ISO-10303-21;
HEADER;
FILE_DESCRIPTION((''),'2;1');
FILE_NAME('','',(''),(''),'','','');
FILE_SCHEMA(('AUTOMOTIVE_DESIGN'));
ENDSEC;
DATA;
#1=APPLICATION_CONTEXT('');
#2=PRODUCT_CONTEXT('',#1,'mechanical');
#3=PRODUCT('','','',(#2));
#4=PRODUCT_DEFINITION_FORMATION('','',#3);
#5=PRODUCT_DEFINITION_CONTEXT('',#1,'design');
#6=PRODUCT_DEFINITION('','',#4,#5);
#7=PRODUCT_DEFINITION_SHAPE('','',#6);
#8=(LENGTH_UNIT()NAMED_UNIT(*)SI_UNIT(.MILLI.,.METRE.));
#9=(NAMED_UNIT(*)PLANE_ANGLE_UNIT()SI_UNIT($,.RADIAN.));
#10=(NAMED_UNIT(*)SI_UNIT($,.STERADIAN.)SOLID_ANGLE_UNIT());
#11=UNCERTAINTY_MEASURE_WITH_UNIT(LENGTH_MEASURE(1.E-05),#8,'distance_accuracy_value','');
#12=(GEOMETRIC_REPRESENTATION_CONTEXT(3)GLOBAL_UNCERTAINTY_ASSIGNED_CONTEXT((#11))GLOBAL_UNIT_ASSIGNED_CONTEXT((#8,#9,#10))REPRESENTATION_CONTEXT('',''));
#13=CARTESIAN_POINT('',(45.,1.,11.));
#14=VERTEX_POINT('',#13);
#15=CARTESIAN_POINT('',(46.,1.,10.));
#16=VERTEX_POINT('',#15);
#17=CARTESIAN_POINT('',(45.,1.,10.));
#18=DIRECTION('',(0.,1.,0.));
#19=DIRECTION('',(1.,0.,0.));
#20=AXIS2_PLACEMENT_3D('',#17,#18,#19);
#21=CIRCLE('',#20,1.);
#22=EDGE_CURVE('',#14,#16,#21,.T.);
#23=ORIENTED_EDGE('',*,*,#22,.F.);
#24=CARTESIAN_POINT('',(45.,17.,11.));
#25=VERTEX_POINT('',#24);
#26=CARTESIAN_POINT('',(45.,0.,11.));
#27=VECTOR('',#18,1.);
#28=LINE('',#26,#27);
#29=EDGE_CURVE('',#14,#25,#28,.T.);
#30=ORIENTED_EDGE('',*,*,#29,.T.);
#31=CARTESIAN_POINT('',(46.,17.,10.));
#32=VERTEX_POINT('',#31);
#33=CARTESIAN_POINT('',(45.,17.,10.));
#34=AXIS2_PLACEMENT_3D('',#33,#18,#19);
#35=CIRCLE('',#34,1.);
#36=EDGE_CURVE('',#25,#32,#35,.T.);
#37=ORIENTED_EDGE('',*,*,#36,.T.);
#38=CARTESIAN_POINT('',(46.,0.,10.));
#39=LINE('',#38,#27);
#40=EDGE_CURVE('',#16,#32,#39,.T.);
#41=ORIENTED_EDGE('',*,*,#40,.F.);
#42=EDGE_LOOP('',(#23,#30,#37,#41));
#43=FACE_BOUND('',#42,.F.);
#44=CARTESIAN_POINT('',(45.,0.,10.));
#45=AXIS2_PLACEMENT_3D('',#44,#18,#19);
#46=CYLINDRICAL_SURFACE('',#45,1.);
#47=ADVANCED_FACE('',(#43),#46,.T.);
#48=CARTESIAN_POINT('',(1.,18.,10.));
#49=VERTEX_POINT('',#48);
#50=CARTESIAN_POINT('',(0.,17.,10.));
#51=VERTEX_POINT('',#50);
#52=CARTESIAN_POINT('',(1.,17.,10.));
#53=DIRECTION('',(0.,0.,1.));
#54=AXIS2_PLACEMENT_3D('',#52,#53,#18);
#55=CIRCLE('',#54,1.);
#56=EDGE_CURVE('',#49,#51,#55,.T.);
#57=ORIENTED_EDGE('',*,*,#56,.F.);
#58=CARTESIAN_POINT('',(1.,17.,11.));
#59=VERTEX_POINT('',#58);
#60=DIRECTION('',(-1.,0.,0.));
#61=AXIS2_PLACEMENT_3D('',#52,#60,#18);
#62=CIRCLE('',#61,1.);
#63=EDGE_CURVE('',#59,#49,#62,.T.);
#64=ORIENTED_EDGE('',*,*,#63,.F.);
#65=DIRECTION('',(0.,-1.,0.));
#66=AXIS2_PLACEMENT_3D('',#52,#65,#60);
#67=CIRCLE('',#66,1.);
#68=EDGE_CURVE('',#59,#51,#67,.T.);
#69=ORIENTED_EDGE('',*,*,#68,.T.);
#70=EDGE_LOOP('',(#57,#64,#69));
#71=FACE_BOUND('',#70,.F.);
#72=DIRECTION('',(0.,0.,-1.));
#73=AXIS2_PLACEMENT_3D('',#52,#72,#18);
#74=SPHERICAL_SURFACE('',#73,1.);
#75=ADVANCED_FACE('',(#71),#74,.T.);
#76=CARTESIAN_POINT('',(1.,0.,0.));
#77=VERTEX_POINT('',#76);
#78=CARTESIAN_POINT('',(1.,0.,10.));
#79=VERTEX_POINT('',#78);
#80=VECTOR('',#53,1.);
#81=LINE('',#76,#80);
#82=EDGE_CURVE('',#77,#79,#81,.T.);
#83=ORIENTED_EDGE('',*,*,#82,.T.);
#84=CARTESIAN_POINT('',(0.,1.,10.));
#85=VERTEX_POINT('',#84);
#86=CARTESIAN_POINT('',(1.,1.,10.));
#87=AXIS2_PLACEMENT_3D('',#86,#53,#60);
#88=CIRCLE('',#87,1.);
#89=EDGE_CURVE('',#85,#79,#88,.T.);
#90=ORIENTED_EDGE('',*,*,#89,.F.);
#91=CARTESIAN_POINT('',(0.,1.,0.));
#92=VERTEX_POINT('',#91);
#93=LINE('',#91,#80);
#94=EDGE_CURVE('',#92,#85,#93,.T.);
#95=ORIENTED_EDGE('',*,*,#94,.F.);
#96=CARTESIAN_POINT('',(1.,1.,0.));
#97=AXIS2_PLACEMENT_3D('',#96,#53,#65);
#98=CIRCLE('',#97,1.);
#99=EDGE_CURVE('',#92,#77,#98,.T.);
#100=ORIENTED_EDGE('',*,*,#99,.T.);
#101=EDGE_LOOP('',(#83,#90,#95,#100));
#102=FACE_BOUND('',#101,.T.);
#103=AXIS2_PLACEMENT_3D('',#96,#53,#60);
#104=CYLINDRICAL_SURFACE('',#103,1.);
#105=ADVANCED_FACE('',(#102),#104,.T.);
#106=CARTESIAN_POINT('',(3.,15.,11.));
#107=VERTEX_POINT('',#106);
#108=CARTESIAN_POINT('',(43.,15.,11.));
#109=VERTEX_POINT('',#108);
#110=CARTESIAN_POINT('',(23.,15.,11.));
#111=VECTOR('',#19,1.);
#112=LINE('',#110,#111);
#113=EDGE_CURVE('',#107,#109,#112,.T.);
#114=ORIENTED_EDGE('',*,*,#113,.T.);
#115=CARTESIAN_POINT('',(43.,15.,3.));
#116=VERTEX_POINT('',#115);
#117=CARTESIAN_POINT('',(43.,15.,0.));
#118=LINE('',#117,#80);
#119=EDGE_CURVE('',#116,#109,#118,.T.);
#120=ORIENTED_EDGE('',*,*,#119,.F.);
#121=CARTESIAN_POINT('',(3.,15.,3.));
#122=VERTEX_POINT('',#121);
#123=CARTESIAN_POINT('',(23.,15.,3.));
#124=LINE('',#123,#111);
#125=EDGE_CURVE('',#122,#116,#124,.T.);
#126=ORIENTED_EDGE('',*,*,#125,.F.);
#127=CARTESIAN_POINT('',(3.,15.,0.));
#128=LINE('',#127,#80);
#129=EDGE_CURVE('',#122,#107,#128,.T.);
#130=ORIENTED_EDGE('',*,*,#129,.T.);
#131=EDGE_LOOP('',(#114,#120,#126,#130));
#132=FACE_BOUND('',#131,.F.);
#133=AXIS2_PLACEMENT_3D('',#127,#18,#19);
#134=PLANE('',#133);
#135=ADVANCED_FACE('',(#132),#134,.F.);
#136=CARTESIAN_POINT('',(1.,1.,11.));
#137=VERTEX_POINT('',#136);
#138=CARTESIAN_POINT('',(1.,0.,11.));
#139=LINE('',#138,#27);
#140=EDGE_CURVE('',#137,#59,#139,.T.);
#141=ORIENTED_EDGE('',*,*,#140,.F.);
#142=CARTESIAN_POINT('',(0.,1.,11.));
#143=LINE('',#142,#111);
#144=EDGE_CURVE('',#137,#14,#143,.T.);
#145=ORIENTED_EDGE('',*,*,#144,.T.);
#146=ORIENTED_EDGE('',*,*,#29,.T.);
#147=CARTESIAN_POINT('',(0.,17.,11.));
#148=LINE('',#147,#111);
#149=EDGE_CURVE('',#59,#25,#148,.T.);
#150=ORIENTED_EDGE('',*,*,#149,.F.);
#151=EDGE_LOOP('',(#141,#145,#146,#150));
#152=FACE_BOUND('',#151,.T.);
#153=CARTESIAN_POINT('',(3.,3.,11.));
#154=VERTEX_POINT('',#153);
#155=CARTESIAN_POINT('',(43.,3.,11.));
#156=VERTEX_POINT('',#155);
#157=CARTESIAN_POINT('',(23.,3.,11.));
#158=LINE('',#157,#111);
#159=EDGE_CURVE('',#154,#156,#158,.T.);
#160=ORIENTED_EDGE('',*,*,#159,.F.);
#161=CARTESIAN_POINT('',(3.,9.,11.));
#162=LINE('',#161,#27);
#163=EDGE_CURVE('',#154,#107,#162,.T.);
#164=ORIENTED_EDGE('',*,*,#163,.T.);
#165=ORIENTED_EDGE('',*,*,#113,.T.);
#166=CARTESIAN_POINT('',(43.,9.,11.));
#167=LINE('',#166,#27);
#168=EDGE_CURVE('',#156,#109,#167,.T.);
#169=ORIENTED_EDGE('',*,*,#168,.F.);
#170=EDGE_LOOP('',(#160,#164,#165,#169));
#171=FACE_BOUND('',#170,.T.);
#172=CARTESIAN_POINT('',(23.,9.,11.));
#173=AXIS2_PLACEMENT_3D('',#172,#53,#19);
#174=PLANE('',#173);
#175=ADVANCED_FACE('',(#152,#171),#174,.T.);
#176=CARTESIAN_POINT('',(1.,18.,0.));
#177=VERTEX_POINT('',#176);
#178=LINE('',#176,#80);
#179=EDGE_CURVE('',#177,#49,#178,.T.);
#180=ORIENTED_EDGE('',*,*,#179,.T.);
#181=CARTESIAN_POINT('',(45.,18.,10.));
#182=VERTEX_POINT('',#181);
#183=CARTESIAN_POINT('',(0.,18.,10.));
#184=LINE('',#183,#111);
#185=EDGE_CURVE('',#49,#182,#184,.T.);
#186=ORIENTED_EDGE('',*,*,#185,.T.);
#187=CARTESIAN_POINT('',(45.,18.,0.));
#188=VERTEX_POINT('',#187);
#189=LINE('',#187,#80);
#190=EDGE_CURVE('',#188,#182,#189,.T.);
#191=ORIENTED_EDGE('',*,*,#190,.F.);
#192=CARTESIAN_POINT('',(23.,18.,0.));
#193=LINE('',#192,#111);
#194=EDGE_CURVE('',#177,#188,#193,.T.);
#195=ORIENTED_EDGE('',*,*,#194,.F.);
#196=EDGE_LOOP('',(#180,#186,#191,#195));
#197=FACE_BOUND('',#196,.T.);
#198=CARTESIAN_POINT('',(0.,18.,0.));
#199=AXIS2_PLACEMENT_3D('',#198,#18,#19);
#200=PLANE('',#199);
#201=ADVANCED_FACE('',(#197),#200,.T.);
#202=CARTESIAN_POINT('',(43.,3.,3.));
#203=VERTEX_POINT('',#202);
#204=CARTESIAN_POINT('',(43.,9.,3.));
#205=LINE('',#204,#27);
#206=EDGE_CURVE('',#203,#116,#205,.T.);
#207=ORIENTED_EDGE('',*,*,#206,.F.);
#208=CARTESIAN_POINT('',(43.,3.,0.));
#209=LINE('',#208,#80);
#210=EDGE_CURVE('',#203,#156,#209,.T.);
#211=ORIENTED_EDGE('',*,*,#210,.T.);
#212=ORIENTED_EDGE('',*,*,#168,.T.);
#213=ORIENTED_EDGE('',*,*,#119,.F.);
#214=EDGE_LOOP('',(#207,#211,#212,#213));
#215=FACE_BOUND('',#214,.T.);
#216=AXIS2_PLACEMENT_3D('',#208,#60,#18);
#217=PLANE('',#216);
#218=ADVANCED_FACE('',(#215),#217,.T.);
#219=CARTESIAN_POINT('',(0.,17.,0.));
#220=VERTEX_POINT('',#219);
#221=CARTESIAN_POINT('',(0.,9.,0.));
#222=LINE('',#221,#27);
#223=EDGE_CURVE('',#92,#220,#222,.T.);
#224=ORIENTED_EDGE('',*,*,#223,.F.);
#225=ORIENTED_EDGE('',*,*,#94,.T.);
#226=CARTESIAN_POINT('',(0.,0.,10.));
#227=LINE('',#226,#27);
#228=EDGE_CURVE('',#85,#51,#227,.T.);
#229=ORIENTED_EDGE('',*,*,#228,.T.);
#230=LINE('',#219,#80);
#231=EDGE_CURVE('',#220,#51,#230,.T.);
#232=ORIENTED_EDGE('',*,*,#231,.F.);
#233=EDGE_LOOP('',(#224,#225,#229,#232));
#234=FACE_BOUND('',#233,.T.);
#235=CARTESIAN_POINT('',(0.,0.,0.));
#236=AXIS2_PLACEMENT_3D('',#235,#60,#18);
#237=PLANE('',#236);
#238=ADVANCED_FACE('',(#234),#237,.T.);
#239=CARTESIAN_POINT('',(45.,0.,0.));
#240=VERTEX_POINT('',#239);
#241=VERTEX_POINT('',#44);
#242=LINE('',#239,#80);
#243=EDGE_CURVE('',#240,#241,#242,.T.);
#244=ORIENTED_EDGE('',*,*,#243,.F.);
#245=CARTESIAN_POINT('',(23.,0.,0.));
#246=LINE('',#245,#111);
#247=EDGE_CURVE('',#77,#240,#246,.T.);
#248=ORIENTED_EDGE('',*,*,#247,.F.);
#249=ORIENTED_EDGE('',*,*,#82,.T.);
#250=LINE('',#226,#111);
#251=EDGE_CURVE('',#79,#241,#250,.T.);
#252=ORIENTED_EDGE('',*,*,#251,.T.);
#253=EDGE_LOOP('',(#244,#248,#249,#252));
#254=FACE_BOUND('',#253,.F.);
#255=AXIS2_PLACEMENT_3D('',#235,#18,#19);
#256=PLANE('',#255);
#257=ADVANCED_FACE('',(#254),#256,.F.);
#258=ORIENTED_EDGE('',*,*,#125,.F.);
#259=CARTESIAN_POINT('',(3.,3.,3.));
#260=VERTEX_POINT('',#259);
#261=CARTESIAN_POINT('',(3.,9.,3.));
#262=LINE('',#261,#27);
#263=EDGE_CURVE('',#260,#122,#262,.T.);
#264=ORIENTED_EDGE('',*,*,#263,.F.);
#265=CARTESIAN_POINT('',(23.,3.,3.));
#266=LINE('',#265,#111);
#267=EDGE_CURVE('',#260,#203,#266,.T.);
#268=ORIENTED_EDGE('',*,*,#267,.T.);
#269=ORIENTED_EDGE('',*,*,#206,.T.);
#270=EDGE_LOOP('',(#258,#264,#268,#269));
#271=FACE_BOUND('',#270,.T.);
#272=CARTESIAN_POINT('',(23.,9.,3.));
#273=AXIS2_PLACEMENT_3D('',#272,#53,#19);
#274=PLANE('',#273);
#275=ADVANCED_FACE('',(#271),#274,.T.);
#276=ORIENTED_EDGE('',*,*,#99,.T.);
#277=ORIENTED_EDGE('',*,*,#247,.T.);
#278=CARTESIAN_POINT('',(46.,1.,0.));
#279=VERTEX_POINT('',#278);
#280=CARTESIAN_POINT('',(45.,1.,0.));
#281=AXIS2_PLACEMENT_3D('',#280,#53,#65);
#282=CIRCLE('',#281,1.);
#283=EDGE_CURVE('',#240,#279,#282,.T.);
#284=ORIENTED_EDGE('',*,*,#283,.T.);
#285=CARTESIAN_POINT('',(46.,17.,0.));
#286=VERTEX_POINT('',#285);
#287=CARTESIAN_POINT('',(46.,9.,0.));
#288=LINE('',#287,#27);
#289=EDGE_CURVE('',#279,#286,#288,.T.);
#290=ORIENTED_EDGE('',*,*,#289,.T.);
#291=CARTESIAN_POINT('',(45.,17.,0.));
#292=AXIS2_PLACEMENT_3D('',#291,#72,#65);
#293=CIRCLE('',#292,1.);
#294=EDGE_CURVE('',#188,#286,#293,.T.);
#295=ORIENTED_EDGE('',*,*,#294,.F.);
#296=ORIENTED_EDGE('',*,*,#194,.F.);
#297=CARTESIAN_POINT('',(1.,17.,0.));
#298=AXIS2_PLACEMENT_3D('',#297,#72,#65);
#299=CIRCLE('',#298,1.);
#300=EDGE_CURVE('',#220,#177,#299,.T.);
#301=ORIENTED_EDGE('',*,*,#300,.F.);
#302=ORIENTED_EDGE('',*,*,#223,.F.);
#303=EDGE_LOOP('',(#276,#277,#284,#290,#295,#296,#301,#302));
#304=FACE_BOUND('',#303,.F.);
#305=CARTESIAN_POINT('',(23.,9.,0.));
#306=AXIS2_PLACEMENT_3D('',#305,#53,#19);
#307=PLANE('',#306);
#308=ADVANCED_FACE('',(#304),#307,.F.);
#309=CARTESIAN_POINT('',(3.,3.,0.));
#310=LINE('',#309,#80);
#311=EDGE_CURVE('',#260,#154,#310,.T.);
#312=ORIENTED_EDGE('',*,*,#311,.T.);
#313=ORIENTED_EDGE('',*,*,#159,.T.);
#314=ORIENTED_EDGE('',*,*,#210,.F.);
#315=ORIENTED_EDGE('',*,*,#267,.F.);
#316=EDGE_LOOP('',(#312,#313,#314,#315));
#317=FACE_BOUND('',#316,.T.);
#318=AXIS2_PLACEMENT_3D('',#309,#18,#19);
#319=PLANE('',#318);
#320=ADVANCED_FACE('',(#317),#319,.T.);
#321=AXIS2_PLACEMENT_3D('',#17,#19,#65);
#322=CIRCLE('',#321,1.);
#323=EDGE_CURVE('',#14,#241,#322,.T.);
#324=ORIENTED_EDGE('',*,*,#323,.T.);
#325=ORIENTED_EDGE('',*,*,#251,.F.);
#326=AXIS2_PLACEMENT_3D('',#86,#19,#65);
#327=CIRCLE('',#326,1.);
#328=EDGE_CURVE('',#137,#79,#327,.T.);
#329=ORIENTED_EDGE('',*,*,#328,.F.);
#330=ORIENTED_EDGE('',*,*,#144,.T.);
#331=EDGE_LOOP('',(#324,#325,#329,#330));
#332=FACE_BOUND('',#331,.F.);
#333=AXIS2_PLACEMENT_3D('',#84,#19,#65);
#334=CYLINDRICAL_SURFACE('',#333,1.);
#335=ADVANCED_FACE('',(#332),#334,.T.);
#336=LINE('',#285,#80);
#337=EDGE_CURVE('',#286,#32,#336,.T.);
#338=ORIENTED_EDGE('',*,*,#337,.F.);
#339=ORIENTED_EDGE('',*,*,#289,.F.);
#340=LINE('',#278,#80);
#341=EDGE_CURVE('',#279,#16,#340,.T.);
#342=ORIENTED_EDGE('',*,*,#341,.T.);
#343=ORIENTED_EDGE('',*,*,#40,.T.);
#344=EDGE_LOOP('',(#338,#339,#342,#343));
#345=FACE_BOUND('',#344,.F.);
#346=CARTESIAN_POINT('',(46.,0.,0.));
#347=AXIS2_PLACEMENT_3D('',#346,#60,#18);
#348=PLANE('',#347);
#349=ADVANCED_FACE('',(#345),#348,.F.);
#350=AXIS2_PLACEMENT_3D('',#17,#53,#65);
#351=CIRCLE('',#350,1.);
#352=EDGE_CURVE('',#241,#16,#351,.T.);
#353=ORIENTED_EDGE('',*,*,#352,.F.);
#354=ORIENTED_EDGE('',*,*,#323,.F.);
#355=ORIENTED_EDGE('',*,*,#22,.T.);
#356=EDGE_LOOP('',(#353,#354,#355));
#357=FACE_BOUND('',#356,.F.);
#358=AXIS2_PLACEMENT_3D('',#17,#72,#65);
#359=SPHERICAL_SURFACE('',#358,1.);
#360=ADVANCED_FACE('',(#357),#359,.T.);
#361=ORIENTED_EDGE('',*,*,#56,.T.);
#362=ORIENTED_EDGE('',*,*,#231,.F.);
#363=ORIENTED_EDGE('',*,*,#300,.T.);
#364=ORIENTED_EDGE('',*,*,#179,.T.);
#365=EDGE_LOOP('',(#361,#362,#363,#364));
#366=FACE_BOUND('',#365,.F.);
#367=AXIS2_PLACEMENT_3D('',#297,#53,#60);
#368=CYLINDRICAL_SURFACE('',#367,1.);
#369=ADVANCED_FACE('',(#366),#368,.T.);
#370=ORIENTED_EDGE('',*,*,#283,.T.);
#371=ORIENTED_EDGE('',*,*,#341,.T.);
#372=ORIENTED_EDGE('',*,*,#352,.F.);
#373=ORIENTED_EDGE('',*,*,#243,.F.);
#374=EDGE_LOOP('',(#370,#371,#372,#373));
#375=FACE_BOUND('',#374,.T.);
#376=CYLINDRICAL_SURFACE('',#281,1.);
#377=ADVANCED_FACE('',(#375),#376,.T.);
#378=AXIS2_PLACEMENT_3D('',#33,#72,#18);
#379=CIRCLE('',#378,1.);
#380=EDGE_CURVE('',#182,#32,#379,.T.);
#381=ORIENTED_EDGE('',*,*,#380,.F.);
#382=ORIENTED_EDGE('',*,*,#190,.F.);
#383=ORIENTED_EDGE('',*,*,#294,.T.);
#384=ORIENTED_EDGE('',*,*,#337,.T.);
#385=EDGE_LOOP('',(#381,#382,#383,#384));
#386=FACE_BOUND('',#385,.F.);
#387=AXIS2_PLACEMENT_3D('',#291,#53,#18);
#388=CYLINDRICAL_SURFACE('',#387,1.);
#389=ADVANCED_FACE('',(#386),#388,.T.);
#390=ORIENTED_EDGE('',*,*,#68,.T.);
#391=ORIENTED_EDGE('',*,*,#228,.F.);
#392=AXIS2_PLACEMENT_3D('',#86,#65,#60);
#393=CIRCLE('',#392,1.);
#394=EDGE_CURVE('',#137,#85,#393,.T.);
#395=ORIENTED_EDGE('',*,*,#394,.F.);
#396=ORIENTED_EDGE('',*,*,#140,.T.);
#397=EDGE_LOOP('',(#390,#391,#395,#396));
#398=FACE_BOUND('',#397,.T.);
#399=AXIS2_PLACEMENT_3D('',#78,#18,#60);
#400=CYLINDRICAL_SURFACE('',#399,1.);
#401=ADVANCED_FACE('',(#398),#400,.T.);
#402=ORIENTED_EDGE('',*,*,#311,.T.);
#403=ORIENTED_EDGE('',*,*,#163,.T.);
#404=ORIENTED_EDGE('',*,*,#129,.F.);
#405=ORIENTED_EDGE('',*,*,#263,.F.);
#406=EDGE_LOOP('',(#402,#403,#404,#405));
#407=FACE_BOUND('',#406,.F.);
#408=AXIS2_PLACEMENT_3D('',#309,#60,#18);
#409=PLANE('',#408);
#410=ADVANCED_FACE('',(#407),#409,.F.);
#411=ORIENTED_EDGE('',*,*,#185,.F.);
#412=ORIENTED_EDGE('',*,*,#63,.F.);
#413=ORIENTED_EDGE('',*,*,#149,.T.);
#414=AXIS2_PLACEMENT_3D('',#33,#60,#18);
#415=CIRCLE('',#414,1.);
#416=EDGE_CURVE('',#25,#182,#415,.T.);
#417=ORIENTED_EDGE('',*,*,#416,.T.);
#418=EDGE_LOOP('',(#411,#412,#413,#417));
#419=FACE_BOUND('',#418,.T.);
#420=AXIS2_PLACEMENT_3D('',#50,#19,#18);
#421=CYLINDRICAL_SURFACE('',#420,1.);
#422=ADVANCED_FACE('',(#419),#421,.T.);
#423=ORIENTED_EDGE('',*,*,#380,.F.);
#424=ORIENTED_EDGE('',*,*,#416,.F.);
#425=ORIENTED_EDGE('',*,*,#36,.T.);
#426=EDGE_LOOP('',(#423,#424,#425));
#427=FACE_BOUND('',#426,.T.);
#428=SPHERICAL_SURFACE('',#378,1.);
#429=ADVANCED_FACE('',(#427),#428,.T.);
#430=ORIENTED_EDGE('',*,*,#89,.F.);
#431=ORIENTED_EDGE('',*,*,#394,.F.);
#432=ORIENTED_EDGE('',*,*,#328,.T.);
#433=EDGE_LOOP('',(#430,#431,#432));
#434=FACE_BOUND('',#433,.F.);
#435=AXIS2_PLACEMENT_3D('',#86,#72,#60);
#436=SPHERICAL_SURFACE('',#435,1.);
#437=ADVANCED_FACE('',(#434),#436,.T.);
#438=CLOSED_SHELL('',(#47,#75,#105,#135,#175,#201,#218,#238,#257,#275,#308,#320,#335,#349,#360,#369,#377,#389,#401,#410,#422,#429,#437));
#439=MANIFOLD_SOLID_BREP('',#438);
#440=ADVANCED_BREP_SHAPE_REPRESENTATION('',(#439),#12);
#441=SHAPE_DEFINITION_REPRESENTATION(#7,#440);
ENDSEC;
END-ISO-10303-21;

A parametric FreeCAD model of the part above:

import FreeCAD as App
import Part
import Sketcher
Q = App.Units.Quantity


def edges_at(feature, points):
    """Names of the edges that pass closest to the given points."""
    edges = feature.Shape.Edges
    near = lambda p: min(range(len(edges)), key=lambda i: edges[i].distToShape(Part.Vertex(*p))[0])
    return sorted({f"Edge{near(p) + 1}" for p in points})


def add_polygon(sketch, points):
    """Adds a closed chain of lines whose ends are joined by coincident constraints."""
    first, n = sketch.GeometryCount, len(points)
    for a, b in zip(points, points[1:] + points[:1]):
        sketch.addGeometry(Part.LineSegment(App.Vector(*a, 0), App.Vector(*b, 0)), False)
    for i in range(n):
        sketch.addConstraint(Sketcher.Constraint("Coincident", first + i, 2, first + (i + 1) % n, 1))

doc = App.newDocument("Part")
params = doc.addObject("Spreadsheet::Sheet", "Params")
for row, (alias, value) in enumerate([
    ("sketch1_width", "46 mm"),
    ("sketch1_width2", "40 mm"),
    ("sketch1_height", "18 mm"),
    ("sketch1_height2", "12 mm"),
    ("pad1_length", "11 mm"),
    ("sketch2_width", "40 mm"),
    ("sketch2_height", "12 mm"),
    ("pad2_length", "3 mm"),
    ("fillet_radius", "1 mm"),
], start=1):
    params.set(f"A{row}", alias)
    params.set(f"B{row}", "=" + value)
    params.setAlias(f"B{row}", alias)

body = doc.addObject("PartDesign::Body", "Body")

# Sketch on XY plane
sketch1 = body.newObject("Sketcher::SketchObject", "Sketch")
sketch1.AttachmentSupport = (doc.getObject("XY_Plane"), [""])
sketch1.MapMode = "FlatFace"
add_polygon(sketch1, [(0, 18), (0, 0), (46, 0), (46, 18)])  # lines 0-3
add_polygon(sketch1, [(43, 3), (3, 3), (3, 15), (43, 15)])  # lines 4-7
sketch1.addConstraint([
    Sketcher.Constraint("Vertical", 0),
    Sketcher.Constraint("Horizontal", 1),
    Sketcher.Constraint("Vertical", 2),
    Sketcher.Constraint("Horizontal", 3),
    Sketcher.Constraint("Horizontal", 4),
    Sketcher.Constraint("Vertical", 5),
    Sketcher.Constraint("Horizontal", 6),
    Sketcher.Constraint("Vertical", 7),
    Sketcher.Constraint("Coincident", 0, 2, -1, 1),
    Sketcher.Constraint("DistanceX", 1, 1, 1, 2, Q("46 mm")),
    Sketcher.Constraint("DistanceX", 4, 2, 4, 1, Q("40 mm")),
    Sketcher.Constraint("DistanceY", 0, 2, 0, 1, Q("18 mm")),
    Sketcher.Constraint("DistanceY", 5, 1, 5, 2, Q("12 mm")),
    Sketcher.Constraint("DistanceX", -1, 1, 4, 2, Q("3 mm")),
    Sketcher.Constraint("DistanceY", -1, 1, 4, 2, Q("3 mm")),
])
sketch1.setExpression("Constraints[17]", "Params.sketch1_width")
sketch1.setExpression("Constraints[18]", "Params.sketch1_width2")
sketch1.setExpression("Constraints[19]", "Params.sketch1_height")
sketch1.setExpression("Constraints[20]", "Params.sketch1_height2")
pad1 = body.newObject("PartDesign::Pad", "Pad")
pad1.Profile = sketch1
pad1.setExpression("Length", "Params.pad1_length")

# Sketch on XY plane
sketch2 = body.newObject("Sketcher::SketchObject", "Sketch001")
sketch2.AttachmentSupport = (doc.getObject("XY_Plane"), [""])
sketch2.MapMode = "FlatFace"
add_polygon(sketch2, [(3, 15), (3, 3), (43, 3), (43, 15)])  # lines 0-3
sketch2.addConstraint([
    Sketcher.Constraint("Vertical", 0),
    Sketcher.Constraint("Horizontal", 1),
    Sketcher.Constraint("Vertical", 2),
    Sketcher.Constraint("Horizontal", 3),
    Sketcher.Constraint("DistanceX", 1, 1, 1, 2, Q("40 mm")),
    Sketcher.Constraint("DistanceY", 0, 2, 0, 1, Q("12 mm")),
    Sketcher.Constraint("DistanceX", -1, 1, 0, 2, Q("3 mm")),
    Sketcher.Constraint("DistanceY", -1, 1, 0, 2, Q("3 mm")),
])
sketch2.setExpression("Constraints[8]", "Params.sketch2_width")
sketch2.setExpression("Constraints[9]", "Params.sketch2_height")
pad2 = body.newObject("PartDesign::Pad", "Pad001")
pad2.Profile = sketch2
pad2.setExpression("Length", "Params.pad2_length")
doc.recompute()

fillet = body.newObject("PartDesign::Fillet", "Fillet")
fillet.Base = (pad2, edges_at(pad2, [
    (46, 18, 5.5),
    (46, 0, 5.5),
    (0, 0, 5.5),
    (0, 18, 5.5),
    (23, 18, 11),
    (0, 9, 11),
    (23, 0, 11),
    (46, 9, 11),
]))
fillet.setExpression("Radius", "Params.fillet_radius")

doc.recompute()
